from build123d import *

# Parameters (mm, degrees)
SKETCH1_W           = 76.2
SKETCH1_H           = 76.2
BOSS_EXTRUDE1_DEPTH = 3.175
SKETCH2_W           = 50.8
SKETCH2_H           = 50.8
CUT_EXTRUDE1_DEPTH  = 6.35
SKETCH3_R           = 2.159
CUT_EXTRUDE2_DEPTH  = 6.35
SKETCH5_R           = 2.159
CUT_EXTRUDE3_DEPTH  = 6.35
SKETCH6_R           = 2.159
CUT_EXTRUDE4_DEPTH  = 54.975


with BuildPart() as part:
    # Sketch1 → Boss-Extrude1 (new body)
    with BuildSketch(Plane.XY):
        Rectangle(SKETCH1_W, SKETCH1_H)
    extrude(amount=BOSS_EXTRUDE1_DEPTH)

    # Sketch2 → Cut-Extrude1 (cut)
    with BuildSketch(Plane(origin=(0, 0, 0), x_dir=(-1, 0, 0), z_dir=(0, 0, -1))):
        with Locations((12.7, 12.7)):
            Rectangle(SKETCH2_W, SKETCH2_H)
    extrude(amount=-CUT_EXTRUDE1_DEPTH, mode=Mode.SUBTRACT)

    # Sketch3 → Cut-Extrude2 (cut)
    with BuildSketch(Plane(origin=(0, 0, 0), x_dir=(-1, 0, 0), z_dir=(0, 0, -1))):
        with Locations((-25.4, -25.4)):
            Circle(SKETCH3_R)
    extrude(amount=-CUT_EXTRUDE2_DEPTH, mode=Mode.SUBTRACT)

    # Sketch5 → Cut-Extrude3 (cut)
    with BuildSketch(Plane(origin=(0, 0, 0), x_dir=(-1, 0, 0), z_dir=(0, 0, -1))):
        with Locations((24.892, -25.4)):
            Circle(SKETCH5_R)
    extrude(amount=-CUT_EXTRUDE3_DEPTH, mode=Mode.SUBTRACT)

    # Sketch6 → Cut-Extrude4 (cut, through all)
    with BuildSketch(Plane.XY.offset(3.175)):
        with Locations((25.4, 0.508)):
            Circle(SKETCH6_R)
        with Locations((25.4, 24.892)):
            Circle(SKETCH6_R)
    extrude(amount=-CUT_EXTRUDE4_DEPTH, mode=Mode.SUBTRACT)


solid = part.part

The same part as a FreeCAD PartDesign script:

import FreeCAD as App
import Part
import Sketcher
Q = App.Units.Quantity


def add_polygon(sketch, points):
    """Adds a closed chain of lines whose ends are joined by coincident constraints."""
    first, n = sketch.GeometryCount, len(points)
    for a, b in zip(points, points[1:] + points[:1]):
        sketch.addGeometry(Part.LineSegment(App.Vector(*a, 0), App.Vector(*b, 0)), False)
    for i in range(n):
        sketch.addConstraint(Sketcher.Constraint("Coincident", first + i, 2, first + (i + 1) % n, 1))

doc = App.newDocument("Part")
body = doc.addObject("PartDesign::Body", "Body")

# Sketch on XY plane
sketch1 = body.newObject("Sketcher::SketchObject", "Sketch")
sketch1.AttachmentSupport = (doc.getObject("XY_Plane"), [""])
sketch1.MapMode = "FlatFace"
add_polygon(sketch1, [(-38.1, 38.1), (-38.1, -38.1), (38.1, -38.1), (38.1, 38.1)])  # lines 0-3
sketch1.addConstraint(Sketcher.Constraint("Vertical", 0))
sketch1.addConstraint(Sketcher.Constraint("Horizontal", 1))
sketch1.addConstraint(Sketcher.Constraint("Vertical", 2))
sketch1.addConstraint(Sketcher.Constraint("Horizontal", 3))
sketch1.addConstraint(Sketcher.Constraint("Symmetric", 0, 2, 2, 2, -1, 1))
sketch1.addConstraint(Sketcher.Constraint("Equal", 3, 0))
sketch1.addConstraint(Sketcher.Constraint("DistanceX", 1, 1, 1, 2, Q("3 in")))
pad1 = body.newObject("PartDesign::Pad", "Pad")
pad1.Profile = sketch1
pad1.Length = Q("0.125 in")

# Sketch on XY plane
sketch2 = body.newObject("Sketcher::SketchObject", "Sketch001")
sketch2.AttachmentSupport = (doc.getObject("XY_Plane"), [""])
sketch2.MapMode = "FlatFace"
add_polygon(sketch2, [(12.7, 38.1), (12.7, -12.7), (-38.1, -12.7), (-38.1, 38.1)])  # lines 0-3
sketch2.addConstraint(Sketcher.Constraint("Vertical", 0))
sketch2.addConstraint(Sketcher.Constraint("Horizontal", 1))
sketch2.addConstraint(Sketcher.Constraint("Vertical", 2))
sketch2.addConstraint(Sketcher.Constraint("Horizontal", 3))
sketch2.addConstraint(Sketcher.Constraint("Equal", 3, 0))
sketch2.addConstraint(Sketcher.Constraint("DistanceX", 1, 2, 1, 1, Q("2 in")))
sketch2.addConstraint(Sketcher.Constraint("DistanceX", -1, 1, 0, 2, Q("0.5 in")))
sketch2.addConstraint(Sketcher.Constraint("DistanceY", 0, 2, -1, 1, Q("0.5 in")))
pocket1 = body.newObject("PartDesign::Pocket", "Pocket")
pocket1.Profile = sketch2
pocket1.Length = Q("0.25 in")
pocket1.Reversed = True

# Sketch on XY plane
sketch3 = body.newObject("Sketcher::SketchObject", "Sketch002")
sketch3.AttachmentSupport = (doc.getObject("XY_Plane"), [""])
sketch3.MapMode = "FlatFace"
sketch3.addGeometry(Part.Circle(App.Vector(25.4, -25.4, 0), App.Vector(0, 0, 1), 2.159), False)
sketch3.addConstraint(Sketcher.Constraint("Diameter", 0, Q("0.17 in")))
sketch3.addConstraint(Sketcher.Constraint("DistanceX", -1, 1, 0, 3, Q("1 in")))
sketch3.addConstraint(Sketcher.Constraint("DistanceY", 0, 3, -1, 1, Q("1 in")))
pocket2 = body.newObject("PartDesign::Pocket", "Pocket001")
pocket2.Profile = sketch3
pocket2.Length = Q("0.25 in")
pocket2.Reversed = True

# Sketch on XY plane
sketch4 = body.newObject("Sketcher::SketchObject", "Sketch003")
sketch4.AttachmentSupport = (doc.getObject("XY_Plane"), [""])
sketch4.MapMode = "FlatFace"
sketch4.addGeometry(Part.Circle(App.Vector(-24.892, -25.4, 0), App.Vector(0, 0, 1), 2.159), False)
sketch4.addConstraint(Sketcher.Constraint("Diameter", 0, Q("0.17 in")))
sketch4.addConstraint(Sketcher.Constraint("DistanceY", 0, 3, -1, 1, Q("1 in")))
sketch4.addConstraint(Sketcher.Constraint("DistanceX", 0, 3, -1, 1, Q("0.98 in")))
pocket3 = body.newObject("PartDesign::Pocket", "Pocket002")
pocket3.Profile = sketch4
pocket3.Length = Q("0.25 in")
pocket3.Reversed = True

# Sketch on XY plane
sketch5 = body.newObject("Sketcher::SketchObject", "Sketch004")
sketch5.AttachmentSupport = (doc.getObject("XY_Plane"), [""])
sketch5.MapMode = "FlatFace"
sketch5.AttachmentOffset = App.Placement(App.Vector(0, 0, 0.125 * 25.4), App.Rotation())
sketch5.addGeometry(Part.Circle(App.Vector(25.4, 0.508, 0), App.Vector(0, 0, 1), 2.159), False)
sketch5.addGeometry(Part.Circle(App.Vector(25.4, 24.892, 0), App.Vector(0, 0, 1), 2.159), False)
sketch5.addConstraint(Sketcher.Constraint("Equal", 0, 1))
sketch5.addConstraint(Sketcher.Constraint("Vertical", 0, 3, 1, 3))
sketch5.addConstraint(Sketcher.Constraint("Diameter", 0, Q("0.17 in")))
sketch5.addConstraint(Sketcher.Constraint("DistanceX", -1, 1, 0, 3, Q("1 in")))
sketch5.addConstraint(Sketcher.Constraint("DistanceY", -1, 1, 0, 3, Q("0.02 in")))
sketch5.addConstraint(Sketcher.Constraint("DistanceY", -1, 1, 1, 3, Q("0.98 in")))
pocket4 = body.newObject("PartDesign::Pocket", "Pocket003")
pocket4.Profile = sketch5
pocket4.Type = "ThroughAll"

doc.recompute()
